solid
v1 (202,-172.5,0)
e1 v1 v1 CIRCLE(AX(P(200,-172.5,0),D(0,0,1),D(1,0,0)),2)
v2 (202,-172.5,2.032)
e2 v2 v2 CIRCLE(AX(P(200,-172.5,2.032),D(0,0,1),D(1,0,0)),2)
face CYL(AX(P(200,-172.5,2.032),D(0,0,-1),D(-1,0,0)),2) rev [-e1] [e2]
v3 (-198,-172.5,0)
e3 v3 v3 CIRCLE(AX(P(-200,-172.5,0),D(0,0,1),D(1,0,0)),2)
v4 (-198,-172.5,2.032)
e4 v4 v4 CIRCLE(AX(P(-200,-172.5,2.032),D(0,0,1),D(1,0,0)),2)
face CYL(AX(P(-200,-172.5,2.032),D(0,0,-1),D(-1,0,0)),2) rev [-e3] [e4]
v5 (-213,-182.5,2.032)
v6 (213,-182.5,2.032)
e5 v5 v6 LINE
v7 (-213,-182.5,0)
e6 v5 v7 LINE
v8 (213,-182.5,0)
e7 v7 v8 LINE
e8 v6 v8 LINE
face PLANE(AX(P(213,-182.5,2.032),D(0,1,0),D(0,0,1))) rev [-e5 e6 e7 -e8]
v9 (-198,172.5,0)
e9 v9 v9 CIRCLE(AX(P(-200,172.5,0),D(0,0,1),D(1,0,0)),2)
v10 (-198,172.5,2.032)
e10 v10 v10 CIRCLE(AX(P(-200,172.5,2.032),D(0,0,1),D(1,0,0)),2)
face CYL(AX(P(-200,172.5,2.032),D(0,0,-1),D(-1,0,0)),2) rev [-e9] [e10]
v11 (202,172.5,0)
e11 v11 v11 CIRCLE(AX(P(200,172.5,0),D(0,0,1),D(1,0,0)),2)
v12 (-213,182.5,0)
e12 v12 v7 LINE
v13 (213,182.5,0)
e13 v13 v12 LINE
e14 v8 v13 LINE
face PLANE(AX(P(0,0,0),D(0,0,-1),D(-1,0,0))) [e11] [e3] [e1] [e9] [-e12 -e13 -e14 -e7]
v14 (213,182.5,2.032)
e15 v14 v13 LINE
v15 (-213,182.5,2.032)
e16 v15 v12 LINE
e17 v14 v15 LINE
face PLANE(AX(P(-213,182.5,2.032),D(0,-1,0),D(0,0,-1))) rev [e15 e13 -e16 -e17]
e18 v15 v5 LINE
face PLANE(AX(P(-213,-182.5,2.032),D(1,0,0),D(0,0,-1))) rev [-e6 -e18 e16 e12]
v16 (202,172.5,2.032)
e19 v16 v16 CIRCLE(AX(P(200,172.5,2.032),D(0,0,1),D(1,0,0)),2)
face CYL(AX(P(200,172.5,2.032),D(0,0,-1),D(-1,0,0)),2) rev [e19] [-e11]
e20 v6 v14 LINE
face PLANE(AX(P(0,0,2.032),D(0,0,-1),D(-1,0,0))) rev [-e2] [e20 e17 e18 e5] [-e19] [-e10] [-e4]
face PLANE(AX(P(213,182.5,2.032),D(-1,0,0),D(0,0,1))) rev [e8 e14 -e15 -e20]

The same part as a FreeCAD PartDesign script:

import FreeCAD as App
import Part
import Sketcher
Q = App.Units.Quantity

doc = App.newDocument("Part")
body = doc.addObject("PartDesign::Body", "Body")

# Sketch on XY plane
sketch1 = body.newObject("Sketcher::SketchObject", "Sketch")
sketch1.AttachmentSupport = (doc.getObject("XY_Plane"), [""])
sketch1.MapMode = "FlatFace"
sketch1.addGeometry([
    Part.LineSegment(App.Vector(-213, 182.5, 0), App.Vector(-213, -182.5, 0)),  # 0
    Part.LineSegment(App.Vector(-213, -182.5, 0), App.Vector(213, -182.5, 0)),  # 1
    Part.LineSegment(App.Vector(213, -182.5, 0), App.Vector(213, 182.5, 0)),  # 2
    Part.LineSegment(App.Vector(213, 182.5, 0), App.Vector(-213, 182.5, 0)),  # 3
    Part.Circle(App.Vector(-200, -172.5, 0), App.Vector(0, 0, 1), 2),  # 4
    Part.Circle(App.Vector(200, -172.5, 0), App.Vector(0, 0, 1), 2),  # 5
    Part.Circle(App.Vector(-200, 172.5, 0), App.Vector(0, 0, 1), 2),  # 6
    Part.Circle(App.Vector(200, 172.5, 0), App.Vector(0, 0, 1), 2),  # 7
], False)
sketch1.addConstraint([
    Sketcher.Constraint("Coincident", 0, 2, 1, 1),
    Sketcher.Constraint("Coincident", 1, 2, 2, 1),
    Sketcher.Constraint("Coincident", 2, 2, 3, 1),
    Sketcher.Constraint("Coincident", 3, 2, 0, 1),
    Sketcher.Constraint("Vertical", 0),
    Sketcher.Constraint("Horizontal", 1),
    Sketcher.Constraint("Vertical", 2),
    Sketcher.Constraint("Horizontal", 3),
    Sketcher.Constraint("Equal", 4, 5),
    Sketcher.Constraint("Equal", 5, 6),
    Sketcher.Constraint("Equal", 6, 7),
    Sketcher.Constraint("Symmetric", 5, 3, 6, 3, -1, 1),
    Sketcher.Constraint("Symmetric", 4, 3, 7, 3, -1, 1),
    Sketcher.Constraint("Symmetric", 0, 2, 2, 2, -1, 1),
    Sketcher.Constraint("Symmetric", 4, 3, 5, 3, -2),
    Sketcher.Constraint("Diameter", 4, Q("4 mm")),
    Sketcher.Constraint("DistanceX", 1, 1, 1, 2, Q("426 mm")),
    Sketcher.Constraint("DistanceY", 0, 2, 0, 1, Q("365 mm")),
    Sketcher.Constraint("DistanceX", 4, 3, -1, 1, Q("200 mm")),
    Sketcher.Constraint("DistanceY", 4, 3, 6, 3, Q("345 mm")),
])
pad1 = body.newObject("PartDesign::Pad", "Pad")
pad1.Profile = sketch1
pad1.Length = 2.032

doc.recompute()
